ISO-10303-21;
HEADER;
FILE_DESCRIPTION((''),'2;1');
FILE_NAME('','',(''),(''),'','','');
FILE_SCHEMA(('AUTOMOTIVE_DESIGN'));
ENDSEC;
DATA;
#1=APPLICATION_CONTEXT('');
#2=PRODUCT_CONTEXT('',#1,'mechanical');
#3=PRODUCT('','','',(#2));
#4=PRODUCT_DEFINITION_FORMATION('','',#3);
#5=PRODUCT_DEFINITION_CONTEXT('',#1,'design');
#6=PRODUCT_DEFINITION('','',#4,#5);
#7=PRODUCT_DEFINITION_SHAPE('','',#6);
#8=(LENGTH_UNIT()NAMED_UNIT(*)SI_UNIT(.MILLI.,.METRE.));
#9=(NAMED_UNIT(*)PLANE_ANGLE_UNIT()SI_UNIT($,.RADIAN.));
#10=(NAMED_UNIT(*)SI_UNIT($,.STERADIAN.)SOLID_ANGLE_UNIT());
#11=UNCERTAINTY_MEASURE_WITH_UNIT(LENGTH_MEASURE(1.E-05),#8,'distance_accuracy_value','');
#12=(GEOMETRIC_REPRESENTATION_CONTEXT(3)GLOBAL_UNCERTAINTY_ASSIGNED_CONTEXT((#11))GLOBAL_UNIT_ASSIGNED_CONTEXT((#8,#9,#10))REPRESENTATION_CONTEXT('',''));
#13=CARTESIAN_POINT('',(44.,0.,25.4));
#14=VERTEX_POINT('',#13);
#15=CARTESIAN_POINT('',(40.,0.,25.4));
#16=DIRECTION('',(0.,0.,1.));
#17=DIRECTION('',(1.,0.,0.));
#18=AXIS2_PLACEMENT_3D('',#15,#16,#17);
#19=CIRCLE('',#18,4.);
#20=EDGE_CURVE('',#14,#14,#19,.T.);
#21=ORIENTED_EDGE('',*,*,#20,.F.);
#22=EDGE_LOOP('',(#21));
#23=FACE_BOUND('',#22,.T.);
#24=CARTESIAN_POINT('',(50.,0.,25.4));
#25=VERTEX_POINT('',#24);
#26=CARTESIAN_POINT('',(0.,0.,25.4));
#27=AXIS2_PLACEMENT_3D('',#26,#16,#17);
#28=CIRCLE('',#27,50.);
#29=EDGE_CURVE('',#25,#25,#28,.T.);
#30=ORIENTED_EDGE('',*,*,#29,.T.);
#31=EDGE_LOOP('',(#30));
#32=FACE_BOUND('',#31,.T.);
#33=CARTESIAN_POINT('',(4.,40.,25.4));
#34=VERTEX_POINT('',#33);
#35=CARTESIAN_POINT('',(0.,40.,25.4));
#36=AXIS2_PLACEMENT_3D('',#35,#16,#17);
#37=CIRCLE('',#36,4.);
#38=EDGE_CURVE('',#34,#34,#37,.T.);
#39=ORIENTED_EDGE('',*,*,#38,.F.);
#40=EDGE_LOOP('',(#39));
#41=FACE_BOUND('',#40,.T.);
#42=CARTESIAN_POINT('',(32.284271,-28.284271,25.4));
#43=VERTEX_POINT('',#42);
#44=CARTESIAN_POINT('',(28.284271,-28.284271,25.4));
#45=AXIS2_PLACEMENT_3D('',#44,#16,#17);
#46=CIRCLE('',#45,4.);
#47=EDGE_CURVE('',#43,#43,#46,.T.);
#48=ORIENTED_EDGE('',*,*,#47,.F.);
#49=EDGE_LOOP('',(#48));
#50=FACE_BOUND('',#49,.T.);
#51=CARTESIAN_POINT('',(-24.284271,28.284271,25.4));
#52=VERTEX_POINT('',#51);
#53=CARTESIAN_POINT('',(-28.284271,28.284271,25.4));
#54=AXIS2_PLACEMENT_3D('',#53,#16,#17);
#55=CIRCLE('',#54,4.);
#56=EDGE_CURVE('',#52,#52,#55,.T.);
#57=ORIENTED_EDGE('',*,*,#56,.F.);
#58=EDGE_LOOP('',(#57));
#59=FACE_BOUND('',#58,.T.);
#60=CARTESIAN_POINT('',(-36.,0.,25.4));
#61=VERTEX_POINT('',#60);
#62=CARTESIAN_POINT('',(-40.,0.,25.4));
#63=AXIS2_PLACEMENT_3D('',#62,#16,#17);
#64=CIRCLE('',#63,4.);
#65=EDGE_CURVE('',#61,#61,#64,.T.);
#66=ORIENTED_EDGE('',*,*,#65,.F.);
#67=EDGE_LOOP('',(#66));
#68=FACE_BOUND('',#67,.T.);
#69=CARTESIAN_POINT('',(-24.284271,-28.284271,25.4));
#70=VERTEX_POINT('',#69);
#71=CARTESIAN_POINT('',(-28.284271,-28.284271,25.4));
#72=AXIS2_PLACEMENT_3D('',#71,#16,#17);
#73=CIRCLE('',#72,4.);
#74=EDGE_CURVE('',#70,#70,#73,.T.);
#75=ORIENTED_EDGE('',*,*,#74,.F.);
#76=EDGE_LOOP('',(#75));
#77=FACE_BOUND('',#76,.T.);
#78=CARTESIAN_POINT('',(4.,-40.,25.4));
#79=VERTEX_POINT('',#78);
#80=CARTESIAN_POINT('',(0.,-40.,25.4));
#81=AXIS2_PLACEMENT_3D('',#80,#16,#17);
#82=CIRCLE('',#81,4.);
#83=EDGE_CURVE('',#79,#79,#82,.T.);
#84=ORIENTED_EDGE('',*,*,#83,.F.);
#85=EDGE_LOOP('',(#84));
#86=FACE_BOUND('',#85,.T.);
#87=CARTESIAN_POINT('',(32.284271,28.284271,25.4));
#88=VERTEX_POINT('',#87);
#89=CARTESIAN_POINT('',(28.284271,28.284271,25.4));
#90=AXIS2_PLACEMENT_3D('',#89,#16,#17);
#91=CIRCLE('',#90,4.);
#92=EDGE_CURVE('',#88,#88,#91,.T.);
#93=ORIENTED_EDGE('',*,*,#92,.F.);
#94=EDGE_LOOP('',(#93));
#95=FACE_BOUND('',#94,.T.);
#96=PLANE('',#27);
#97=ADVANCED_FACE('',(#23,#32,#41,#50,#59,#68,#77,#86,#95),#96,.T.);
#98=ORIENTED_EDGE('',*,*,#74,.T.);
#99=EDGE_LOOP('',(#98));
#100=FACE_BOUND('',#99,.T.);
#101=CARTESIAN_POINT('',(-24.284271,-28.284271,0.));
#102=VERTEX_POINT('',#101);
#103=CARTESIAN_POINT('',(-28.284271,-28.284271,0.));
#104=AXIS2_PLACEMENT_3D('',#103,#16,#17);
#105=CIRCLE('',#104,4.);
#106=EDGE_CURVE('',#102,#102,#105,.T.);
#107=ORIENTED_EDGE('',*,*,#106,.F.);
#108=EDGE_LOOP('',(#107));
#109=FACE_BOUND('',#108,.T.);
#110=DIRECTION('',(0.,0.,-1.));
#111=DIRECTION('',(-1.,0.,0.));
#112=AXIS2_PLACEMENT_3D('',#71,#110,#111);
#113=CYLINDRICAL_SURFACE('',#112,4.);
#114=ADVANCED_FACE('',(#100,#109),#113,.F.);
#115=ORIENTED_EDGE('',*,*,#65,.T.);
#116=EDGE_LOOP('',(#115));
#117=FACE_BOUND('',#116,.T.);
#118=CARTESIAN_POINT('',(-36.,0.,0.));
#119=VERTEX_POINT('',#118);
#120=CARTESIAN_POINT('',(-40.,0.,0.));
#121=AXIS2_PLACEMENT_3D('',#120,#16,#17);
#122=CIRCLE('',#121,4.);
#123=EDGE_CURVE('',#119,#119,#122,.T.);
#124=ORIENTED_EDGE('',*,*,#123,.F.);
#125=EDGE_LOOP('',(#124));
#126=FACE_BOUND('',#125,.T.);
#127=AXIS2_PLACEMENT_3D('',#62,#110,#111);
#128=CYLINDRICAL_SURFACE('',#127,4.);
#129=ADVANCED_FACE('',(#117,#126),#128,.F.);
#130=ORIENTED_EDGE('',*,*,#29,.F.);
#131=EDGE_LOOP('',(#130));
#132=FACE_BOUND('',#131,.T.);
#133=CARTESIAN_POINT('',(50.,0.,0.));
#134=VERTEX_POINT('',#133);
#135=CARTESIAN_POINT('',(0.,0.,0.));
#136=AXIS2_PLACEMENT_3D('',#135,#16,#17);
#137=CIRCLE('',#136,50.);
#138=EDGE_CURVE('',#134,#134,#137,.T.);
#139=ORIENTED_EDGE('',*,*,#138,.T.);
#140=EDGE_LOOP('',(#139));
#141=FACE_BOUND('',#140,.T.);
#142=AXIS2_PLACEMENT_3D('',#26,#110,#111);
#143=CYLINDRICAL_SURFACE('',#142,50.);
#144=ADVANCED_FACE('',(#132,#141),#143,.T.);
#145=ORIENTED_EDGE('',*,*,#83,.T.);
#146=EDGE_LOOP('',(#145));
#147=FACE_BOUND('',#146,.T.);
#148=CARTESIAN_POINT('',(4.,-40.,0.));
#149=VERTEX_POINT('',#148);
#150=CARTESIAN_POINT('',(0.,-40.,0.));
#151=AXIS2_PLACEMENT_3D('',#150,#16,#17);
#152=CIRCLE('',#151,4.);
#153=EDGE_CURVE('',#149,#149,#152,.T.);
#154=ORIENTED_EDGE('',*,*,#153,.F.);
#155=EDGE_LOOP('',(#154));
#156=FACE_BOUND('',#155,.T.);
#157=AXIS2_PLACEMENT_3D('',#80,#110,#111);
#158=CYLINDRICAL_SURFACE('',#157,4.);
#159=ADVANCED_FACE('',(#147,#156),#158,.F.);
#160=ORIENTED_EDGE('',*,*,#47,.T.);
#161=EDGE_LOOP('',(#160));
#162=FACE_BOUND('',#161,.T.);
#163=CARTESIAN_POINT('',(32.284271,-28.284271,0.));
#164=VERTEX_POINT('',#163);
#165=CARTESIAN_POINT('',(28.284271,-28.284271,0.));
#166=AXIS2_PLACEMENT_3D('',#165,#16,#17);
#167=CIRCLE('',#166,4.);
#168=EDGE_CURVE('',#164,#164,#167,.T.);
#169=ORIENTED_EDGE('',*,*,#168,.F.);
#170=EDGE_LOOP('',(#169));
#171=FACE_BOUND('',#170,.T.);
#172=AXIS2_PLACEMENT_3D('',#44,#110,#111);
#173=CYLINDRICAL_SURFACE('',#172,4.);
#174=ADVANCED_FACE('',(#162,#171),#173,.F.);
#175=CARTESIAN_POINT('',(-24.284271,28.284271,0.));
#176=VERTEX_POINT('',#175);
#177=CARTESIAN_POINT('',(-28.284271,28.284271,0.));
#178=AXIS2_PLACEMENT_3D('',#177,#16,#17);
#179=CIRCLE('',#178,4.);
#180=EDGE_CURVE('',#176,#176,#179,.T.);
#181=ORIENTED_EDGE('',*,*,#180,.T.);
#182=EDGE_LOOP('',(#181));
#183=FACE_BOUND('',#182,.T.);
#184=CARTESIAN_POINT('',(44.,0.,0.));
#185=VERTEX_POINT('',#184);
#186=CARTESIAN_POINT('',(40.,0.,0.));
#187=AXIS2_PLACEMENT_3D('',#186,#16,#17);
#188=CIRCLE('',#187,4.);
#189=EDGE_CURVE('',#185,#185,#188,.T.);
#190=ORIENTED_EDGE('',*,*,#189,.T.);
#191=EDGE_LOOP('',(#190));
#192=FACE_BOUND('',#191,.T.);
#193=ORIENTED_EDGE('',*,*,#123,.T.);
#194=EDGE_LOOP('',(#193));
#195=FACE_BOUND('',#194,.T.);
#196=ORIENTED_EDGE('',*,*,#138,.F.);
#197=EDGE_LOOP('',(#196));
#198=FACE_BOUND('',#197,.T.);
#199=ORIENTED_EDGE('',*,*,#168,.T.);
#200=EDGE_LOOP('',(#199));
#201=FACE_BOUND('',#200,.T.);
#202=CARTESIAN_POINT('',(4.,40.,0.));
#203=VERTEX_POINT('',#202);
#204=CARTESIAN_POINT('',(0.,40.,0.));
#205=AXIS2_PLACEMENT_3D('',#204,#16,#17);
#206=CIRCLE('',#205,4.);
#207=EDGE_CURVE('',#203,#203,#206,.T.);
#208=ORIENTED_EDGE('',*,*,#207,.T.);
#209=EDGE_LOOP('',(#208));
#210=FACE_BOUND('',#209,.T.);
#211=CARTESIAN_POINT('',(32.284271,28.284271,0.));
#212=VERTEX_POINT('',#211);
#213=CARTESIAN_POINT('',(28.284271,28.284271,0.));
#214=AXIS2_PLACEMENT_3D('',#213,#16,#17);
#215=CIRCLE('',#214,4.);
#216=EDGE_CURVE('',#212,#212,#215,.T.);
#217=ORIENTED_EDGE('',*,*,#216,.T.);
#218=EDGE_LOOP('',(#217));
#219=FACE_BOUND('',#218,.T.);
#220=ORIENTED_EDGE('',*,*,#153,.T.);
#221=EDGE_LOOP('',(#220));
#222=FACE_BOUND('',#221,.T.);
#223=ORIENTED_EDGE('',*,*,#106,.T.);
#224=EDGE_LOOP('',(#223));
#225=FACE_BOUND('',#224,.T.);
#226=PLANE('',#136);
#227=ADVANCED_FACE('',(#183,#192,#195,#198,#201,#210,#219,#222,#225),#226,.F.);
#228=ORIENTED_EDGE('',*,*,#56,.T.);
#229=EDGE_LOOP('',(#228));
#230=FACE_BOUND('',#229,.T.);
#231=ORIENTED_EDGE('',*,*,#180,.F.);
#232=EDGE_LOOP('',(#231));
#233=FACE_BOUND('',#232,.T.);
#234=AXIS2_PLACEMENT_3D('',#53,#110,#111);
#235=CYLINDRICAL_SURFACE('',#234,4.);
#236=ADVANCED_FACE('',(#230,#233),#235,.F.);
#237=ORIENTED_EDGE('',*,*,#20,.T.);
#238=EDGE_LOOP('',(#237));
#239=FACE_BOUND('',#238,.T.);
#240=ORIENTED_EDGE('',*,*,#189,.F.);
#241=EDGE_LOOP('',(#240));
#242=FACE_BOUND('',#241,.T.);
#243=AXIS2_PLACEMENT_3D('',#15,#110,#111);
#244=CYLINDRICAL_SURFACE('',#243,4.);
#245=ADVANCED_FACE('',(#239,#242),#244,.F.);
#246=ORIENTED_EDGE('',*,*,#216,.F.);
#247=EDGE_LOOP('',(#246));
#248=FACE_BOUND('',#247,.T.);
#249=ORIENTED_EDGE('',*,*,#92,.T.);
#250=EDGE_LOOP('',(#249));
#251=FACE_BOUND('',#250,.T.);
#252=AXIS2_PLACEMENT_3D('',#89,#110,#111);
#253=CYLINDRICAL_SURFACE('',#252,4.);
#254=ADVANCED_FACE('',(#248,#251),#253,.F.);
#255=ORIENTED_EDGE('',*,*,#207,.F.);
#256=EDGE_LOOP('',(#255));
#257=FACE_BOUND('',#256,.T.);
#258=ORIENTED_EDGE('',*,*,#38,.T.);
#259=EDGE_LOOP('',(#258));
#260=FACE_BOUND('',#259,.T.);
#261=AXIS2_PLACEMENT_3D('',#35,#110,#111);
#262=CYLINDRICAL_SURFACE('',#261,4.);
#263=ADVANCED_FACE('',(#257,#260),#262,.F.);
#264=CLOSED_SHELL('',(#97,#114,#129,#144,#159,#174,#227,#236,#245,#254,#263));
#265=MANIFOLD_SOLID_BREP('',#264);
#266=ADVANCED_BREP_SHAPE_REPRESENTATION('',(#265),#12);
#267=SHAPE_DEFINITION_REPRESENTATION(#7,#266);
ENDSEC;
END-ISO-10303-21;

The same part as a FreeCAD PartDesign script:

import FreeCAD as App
import Part
import Sketcher
Q = App.Units.Quantity

doc = App.newDocument("Part")
body = doc.addObject("PartDesign::Body", "Body")

# Sketch on XY plane
sketch1 = doc.addObject("Sketcher::SketchObject", "Sketch")
body.addObject(sketch1)
sketch1.AttachmentSupport = (doc.XY_Plane, [""])
sketch1.MapMode = "FlatFace"
sketch1.addGeometry(Part.Circle(App.Vector(0, 0, 0), App.Vector(0, 0, 1), 50), False)
sketch1.addGeometry(Part.Circle(App.Vector(-28.3, -28.3, 0), App.Vector(0, 0, 1), 4), False)
sketch1.addGeometry(Part.Circle(App.Vector(0, -40, 0), App.Vector(0, 0, 1), 4), False)
sketch1.addGeometry(Part.Circle(App.Vector(28.3, -28.3, 0), App.Vector(0, 0, 1), 4), False)
sketch1.addGeometry(Part.Circle(App.Vector(-40, 0, 0), App.Vector(0, 0, 1), 4), False)
sketch1.addGeometry(Part.Circle(App.Vector(-28.3, 28.3, 0), App.Vector(0, 0, 1), 4), False)
sketch1.addGeometry(Part.Circle(App.Vector(40, 0, 0), App.Vector(0, 0, 1), 4), False)
sketch1.addGeometry(Part.Circle(App.Vector(0, 40, 0), App.Vector(0, 0, 1), 4), False)
sketch1.addGeometry(Part.Circle(App.Vector(28.3, 28.3, 0), App.Vector(0, 0, 1), 4), False)
sketch1.addConstraint(Sketcher.Constraint("Coincident", 0, 3, -1, 1))
sketch1.addConstraint(Sketcher.Constraint("Equal", 1, 2))
sketch1.addConstraint(Sketcher.Constraint("Equal", 2, 3))
sketch1.addConstraint(Sketcher.Constraint("Equal", 3, 4))
sketch1.addConstraint(Sketcher.Constraint("Equal", 4, 5))
sketch1.addConstraint(Sketcher.Constraint("Equal", 5, 6))
sketch1.addConstraint(Sketcher.Constraint("Equal", 6, 7))
sketch1.addConstraint(Sketcher.Constraint("Equal", 7, 8))
sketch1.addConstraint(Sketcher.Constraint("Symmetric", 3, 3, 5, 3, -1, 1))
sketch1.addConstraint(Sketcher.Constraint("Symmetric", 4, 3, 6, 3, -1, 1))
sketch1.addConstraint(Sketcher.Constraint("Symmetric", 2, 3, 7, 3, -1, 1))
sketch1.addConstraint(Sketcher.Constraint("Symmetric", 1, 3, 8, 3, -1, 1))
sketch1.addConstraint(Sketcher.Constraint("Symmetric", 1, 3, 3, 3, -2))
sketch1.addConstraint(Sketcher.Constraint("PointOnObject", 2, 3, -2))
sketch1.addConstraint(Sketcher.Constraint("PointOnObject", 4, 3, -1))
sketch1.addConstraint(Sketcher.Constraint("Diameter", 0, Q("100 mm")))
sketch1.addConstraint(Sketcher.Constraint("Diameter", 1, Q("8 mm")))
sketch1.addConstraint(Sketcher.Constraint("DistanceY", 2, 3, -1, 1, Q("40 mm")))
sketch1.addConstraint(Sketcher.Constraint("DistanceX", 4, 3, -1, 1, Q("40 mm")))
sketch1.addConstraint(Sketcher.Constraint("DistanceX", 1, 3, -1, 1, Q("28.284271 mm")))
sketch1.addConstraint(Sketcher.Constraint("DistanceY", 1, 3, -1, 1, Q("28.284271 mm")))
pad1 = doc.addObject("PartDesign::Pad", "Pad")
body.addObject(pad1)
pad1.Profile = sketch1
pad1.Length = 25.4

doc.recompute()
